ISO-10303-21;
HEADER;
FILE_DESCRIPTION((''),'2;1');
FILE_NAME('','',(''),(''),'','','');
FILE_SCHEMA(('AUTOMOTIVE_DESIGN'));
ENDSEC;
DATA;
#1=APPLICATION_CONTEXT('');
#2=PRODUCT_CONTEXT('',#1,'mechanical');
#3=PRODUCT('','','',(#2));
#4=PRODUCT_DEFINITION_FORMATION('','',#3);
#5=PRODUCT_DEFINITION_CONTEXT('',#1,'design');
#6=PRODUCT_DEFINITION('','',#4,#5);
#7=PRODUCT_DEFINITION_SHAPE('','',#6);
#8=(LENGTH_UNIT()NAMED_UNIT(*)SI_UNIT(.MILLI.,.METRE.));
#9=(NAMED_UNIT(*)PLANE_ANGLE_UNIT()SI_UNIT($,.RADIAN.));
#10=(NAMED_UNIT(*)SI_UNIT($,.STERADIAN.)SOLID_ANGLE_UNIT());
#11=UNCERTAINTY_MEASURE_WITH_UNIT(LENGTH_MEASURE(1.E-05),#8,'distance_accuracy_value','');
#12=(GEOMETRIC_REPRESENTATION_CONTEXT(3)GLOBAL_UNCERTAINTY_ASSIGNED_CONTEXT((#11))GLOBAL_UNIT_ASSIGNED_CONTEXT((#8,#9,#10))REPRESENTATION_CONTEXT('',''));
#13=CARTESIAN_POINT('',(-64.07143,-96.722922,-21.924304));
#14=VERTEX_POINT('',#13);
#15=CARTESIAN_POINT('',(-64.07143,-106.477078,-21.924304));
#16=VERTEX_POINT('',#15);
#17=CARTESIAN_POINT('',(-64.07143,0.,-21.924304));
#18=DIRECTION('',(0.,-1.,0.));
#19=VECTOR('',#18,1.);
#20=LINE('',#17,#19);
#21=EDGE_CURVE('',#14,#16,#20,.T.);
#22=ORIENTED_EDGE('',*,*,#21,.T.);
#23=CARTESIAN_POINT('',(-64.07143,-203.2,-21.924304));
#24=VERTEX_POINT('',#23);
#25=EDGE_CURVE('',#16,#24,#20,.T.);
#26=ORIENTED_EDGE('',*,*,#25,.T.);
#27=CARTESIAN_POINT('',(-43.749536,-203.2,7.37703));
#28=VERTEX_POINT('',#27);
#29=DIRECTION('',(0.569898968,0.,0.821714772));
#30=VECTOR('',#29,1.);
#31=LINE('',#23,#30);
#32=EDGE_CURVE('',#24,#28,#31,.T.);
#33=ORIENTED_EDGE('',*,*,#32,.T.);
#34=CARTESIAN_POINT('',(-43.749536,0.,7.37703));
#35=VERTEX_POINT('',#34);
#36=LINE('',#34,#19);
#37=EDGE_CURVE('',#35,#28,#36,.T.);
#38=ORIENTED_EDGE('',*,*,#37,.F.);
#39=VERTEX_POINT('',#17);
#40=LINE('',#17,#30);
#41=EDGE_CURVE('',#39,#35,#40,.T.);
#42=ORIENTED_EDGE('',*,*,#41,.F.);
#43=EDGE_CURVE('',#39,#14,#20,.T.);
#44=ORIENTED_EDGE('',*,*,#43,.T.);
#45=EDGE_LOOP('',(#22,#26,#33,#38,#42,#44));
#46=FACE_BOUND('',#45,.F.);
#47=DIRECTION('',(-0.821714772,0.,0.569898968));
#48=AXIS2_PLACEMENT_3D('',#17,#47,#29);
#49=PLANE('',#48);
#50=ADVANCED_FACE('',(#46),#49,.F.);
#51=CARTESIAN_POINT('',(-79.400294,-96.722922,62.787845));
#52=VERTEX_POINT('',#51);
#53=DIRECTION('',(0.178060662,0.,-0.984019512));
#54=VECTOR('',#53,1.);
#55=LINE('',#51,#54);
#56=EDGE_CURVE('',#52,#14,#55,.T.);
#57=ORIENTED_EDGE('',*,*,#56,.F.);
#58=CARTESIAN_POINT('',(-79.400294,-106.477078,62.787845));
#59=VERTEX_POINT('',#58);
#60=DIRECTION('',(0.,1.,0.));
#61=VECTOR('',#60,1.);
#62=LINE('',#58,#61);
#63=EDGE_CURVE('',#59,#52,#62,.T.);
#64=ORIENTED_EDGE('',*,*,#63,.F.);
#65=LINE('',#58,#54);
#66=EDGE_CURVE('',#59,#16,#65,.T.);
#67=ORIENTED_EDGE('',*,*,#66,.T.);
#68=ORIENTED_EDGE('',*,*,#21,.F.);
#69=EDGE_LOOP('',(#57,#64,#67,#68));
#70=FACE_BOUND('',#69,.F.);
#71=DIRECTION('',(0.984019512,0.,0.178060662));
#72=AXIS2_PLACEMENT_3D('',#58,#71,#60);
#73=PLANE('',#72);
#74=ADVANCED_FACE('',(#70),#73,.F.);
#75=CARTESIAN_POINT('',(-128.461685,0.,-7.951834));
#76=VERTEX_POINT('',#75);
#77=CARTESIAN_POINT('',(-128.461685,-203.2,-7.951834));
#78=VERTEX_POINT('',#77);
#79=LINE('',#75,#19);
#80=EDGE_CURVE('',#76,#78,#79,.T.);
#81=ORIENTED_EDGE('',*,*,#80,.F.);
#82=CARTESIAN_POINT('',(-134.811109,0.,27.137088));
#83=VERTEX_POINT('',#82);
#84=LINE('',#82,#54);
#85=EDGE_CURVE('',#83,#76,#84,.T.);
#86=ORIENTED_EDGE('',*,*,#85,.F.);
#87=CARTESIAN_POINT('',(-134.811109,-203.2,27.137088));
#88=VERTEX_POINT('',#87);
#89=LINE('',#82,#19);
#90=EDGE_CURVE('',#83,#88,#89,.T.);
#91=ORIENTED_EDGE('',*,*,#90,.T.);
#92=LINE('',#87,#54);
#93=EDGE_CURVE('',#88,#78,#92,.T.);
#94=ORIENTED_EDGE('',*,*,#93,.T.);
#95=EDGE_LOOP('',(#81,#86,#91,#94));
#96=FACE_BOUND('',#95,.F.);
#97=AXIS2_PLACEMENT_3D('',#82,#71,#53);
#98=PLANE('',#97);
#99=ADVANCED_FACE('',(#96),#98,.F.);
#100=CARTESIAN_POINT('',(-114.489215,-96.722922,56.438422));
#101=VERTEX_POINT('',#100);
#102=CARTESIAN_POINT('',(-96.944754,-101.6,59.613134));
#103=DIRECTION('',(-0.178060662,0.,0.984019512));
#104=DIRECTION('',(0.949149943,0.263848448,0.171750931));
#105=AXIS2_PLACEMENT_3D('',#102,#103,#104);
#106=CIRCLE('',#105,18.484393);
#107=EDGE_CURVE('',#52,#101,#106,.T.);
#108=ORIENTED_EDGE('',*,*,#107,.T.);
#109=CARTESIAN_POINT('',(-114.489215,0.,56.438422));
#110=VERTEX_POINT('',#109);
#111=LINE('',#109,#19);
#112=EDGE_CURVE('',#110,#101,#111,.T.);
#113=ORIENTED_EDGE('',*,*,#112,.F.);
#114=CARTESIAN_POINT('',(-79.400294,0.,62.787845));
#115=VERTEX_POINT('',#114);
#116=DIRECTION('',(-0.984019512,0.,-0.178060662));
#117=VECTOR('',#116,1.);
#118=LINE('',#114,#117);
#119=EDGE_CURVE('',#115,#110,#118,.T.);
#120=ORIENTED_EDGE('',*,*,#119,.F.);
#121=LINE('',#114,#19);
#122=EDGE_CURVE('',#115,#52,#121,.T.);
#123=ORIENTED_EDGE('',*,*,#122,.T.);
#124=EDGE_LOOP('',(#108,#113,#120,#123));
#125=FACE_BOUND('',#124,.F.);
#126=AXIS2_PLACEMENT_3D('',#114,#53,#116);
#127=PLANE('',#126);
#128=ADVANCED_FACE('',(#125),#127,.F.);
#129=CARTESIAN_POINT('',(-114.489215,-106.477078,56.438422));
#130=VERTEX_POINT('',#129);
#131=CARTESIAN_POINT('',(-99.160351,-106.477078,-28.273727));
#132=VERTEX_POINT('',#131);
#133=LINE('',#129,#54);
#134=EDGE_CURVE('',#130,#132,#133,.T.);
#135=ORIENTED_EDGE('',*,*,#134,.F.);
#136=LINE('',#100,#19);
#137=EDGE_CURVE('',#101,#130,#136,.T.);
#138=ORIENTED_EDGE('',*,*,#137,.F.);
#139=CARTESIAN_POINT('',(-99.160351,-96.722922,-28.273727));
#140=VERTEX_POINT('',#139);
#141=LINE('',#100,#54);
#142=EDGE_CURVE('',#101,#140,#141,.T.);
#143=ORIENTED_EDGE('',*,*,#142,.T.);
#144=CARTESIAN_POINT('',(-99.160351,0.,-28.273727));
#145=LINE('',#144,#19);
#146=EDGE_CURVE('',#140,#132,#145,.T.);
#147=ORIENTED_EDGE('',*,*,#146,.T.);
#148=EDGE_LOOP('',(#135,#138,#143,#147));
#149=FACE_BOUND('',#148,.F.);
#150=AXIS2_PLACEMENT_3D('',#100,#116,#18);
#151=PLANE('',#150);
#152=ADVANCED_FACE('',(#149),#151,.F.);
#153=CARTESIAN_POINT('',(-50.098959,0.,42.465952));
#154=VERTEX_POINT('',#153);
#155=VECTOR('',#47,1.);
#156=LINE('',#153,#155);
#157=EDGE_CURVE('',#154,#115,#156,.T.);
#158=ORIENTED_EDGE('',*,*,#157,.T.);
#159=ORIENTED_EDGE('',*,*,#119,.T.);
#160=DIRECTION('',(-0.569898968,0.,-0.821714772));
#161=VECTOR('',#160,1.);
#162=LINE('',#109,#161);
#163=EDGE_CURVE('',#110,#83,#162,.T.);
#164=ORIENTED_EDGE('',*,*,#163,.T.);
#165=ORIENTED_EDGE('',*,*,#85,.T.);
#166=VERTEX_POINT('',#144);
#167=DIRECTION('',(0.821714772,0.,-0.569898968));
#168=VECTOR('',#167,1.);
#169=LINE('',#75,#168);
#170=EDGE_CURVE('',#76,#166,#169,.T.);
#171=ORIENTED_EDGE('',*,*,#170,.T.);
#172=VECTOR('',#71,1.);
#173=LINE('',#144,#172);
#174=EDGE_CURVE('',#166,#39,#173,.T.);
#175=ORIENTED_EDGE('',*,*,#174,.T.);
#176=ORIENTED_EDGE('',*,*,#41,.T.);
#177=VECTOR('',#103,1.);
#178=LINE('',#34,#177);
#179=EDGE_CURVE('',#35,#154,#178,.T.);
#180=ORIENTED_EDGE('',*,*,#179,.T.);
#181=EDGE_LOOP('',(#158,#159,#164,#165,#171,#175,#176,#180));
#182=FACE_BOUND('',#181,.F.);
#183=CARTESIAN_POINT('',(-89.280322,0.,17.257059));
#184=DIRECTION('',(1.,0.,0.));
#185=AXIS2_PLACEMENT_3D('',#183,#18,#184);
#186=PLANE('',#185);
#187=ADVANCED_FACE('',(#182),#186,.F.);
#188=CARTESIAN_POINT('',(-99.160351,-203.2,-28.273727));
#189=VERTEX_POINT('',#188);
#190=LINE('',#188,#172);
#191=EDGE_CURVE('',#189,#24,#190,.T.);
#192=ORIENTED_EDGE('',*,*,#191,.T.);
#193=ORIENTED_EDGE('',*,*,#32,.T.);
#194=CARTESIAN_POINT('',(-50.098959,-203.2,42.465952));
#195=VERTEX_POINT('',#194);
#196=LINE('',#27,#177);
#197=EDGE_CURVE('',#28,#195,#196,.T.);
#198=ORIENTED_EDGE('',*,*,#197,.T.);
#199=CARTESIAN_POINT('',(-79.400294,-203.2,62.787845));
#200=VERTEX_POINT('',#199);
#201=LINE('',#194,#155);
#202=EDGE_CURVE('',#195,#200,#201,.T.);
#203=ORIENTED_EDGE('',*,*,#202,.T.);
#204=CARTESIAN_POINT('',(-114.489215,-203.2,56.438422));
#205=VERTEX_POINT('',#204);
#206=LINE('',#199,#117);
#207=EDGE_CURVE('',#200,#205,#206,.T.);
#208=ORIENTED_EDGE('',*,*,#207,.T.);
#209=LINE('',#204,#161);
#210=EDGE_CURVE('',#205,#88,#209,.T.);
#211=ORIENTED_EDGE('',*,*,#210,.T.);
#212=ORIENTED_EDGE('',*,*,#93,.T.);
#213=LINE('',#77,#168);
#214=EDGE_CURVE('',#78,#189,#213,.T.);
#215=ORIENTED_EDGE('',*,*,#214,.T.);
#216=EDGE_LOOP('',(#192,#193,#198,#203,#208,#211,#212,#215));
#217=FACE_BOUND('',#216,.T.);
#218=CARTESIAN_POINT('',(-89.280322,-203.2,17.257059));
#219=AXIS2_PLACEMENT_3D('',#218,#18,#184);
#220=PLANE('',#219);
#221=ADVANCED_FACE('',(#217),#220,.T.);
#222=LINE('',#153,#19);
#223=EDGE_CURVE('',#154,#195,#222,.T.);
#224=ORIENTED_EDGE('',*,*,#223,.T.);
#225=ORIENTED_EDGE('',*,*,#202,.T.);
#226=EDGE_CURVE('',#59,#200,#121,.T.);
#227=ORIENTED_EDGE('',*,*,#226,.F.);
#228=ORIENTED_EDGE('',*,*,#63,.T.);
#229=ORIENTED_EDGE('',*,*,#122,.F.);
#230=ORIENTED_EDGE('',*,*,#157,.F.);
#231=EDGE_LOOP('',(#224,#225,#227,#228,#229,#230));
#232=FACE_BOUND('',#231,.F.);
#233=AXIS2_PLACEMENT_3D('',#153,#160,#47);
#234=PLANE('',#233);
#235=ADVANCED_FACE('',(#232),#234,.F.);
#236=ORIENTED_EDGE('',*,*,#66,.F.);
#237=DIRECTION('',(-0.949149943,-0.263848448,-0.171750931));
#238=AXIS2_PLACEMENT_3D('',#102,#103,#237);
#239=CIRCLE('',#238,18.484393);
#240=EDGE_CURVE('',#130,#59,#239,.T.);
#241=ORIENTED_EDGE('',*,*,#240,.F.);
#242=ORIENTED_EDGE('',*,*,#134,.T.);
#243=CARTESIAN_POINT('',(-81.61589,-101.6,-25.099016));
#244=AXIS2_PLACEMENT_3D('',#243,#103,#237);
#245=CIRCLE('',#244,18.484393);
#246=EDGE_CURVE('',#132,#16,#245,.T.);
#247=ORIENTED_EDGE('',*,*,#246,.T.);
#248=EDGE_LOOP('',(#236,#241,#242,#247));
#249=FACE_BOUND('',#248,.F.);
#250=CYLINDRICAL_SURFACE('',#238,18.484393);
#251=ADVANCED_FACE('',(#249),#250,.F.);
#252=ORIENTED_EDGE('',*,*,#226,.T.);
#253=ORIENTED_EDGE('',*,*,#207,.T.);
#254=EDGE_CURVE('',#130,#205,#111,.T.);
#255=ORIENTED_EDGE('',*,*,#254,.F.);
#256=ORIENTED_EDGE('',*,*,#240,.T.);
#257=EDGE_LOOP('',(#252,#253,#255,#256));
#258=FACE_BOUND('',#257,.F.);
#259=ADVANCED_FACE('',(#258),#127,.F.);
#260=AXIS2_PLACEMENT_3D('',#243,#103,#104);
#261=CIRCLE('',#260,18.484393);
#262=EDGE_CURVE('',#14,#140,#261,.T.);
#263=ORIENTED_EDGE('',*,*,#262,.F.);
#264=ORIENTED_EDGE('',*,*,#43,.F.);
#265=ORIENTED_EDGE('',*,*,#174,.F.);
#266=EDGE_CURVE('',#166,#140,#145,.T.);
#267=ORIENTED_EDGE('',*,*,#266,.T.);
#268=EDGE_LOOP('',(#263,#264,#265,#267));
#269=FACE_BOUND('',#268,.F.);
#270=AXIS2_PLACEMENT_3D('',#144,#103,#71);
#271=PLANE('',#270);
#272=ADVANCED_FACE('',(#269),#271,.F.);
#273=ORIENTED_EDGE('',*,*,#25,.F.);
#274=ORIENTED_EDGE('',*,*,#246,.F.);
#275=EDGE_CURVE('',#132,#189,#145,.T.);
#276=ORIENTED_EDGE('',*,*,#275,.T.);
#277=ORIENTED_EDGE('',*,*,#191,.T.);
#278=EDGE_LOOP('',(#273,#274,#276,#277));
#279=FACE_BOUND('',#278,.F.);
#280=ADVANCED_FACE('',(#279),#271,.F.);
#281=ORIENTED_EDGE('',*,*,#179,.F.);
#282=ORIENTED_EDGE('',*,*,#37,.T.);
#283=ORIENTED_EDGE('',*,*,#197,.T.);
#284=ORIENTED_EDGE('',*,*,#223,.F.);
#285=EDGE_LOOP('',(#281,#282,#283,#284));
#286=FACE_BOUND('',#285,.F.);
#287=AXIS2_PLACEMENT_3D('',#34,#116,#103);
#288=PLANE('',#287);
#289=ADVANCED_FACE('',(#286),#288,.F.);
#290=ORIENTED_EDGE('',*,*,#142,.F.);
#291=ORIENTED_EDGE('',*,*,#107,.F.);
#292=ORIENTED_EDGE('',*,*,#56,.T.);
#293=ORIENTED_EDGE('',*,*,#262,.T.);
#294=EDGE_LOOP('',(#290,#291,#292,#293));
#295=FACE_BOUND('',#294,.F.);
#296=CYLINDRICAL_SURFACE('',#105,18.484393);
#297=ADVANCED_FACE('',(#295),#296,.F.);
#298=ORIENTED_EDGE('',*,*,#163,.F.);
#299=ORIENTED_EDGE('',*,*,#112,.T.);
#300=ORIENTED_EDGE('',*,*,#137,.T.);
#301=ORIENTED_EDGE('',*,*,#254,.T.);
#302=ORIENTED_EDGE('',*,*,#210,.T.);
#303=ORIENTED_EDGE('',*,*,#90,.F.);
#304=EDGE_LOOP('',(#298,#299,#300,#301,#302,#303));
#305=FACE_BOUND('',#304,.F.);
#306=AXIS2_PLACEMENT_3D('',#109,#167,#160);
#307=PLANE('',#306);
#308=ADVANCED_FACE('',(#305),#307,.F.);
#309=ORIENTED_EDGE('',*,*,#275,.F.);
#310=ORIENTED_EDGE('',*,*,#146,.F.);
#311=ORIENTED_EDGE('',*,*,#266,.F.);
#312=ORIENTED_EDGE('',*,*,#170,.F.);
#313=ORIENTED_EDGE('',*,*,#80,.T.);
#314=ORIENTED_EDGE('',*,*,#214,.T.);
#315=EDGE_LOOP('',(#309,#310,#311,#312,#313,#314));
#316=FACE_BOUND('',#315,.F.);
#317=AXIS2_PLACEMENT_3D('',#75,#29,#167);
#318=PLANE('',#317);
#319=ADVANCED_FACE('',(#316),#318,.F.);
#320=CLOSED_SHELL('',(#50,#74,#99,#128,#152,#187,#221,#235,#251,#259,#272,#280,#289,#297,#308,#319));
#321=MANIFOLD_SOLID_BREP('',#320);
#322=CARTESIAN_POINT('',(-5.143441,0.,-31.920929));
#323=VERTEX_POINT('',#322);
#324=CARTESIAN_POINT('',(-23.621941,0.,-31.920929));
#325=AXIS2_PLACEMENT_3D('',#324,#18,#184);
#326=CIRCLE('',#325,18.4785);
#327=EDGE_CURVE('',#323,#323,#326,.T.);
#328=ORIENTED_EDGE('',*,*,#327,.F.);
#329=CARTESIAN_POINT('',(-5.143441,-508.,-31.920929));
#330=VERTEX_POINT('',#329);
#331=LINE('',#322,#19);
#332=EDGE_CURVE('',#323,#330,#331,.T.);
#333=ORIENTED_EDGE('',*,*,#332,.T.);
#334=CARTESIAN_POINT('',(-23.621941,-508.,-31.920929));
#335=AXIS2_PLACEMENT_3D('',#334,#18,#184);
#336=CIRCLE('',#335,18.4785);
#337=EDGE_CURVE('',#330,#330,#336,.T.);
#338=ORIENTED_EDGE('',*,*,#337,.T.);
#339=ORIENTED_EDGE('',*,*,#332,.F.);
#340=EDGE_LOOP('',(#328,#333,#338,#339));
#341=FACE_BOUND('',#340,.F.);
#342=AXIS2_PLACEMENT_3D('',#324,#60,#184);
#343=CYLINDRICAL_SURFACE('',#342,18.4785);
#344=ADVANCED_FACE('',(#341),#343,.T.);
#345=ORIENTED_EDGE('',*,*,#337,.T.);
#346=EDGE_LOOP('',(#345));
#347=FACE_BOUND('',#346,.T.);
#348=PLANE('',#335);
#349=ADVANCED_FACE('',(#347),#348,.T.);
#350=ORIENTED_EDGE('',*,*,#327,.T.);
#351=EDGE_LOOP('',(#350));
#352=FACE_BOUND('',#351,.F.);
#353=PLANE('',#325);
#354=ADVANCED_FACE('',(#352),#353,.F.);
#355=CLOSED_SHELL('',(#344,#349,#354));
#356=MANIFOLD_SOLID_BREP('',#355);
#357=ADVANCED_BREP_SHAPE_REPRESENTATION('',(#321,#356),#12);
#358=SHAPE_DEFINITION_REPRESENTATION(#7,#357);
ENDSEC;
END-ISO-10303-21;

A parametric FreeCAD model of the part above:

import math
import FreeCAD as App
import Part
import Sketcher

V = App.Vector
Q = App.Units.Quantity


def add_polygon(sketch, points):
    """Adds a closed chain of lines whose ends are joined by coincident constraints."""
    first, n = sketch.GeometryCount, len(points)
    for a, b in zip(points, points[1:] + points[:1]):
        sketch.addGeometry(Part.LineSegment(App.Vector(*a, 0), App.Vector(*b, 0)), False)
    for i in range(n):
        sketch.addConstraint(Sketcher.Constraint("Coincident", first + i, 2, first + (i + 1) % n, 1))

doc = App.newDocument("Part")
body = doc.addObject("PartDesign::Body", "Body")

sketch1 = body.newObject("Sketcher::SketchObject", "Sketch")
sketch1.AttachmentSupport = (doc.getObject("XZ_Plane"), [""])
sketch1.MapMode = "FlatFace"
add_polygon(sketch1, [(-64, -22), (-44, 7), (-50, 42), (-79, 63), (-114, 56), (-135, 27), (-128, -8), (-99, -28)])
sketch1.addConstraint([
    Sketcher.Constraint("Perpendicular", 0, 2),
    Sketcher.Constraint("Perpendicular", 1, 3),
    Sketcher.Constraint("Perpendicular", 2, 4),
    Sketcher.Constraint("Perpendicular", 3, 5),
    Sketcher.Constraint("Perpendicular", 4, 6),
    Sketcher.Constraint("Perpendicular", 5, 7),
    Sketcher.Constraint("Equal", 0, 1),
    Sketcher.Constraint("Equal", 1, 2),
    Sketcher.Constraint("Equal", 2, 3),
    Sketcher.Constraint("Equal", 3, 4),
    Sketcher.Constraint("Equal", 4, 5),
    Sketcher.Constraint("DistanceX", 1, 2, -1, 1, Q("1.9724 in")),
    Sketcher.Constraint("DistanceY", -1, 1, 0, 2, Q("7.37703 mm")),
    Sketcher.Constraint("DistanceY", -1, 1, 1, 2, Q("42.465952 mm")),
    Sketcher.Constraint("DistanceY", -1, 1, 3, 2, Q("56.438422 mm")),
    Sketcher.Constraint("DistanceX", 4, 2, -1, 1, Q("134.811109 mm")),
])
pad1 = body.newObject("PartDesign::Pad", "Pad")
pad1.Profile = sketch1
pad1.Length = Q("8 in")

sketch2 = body.newObject("Sketcher::SketchObject", "Sketch001")
sketch2.Placement = App.Placement(V(-13.518817, 0, 74.709255), App.Rotation(V(0.984019512, 0, 0.178060662), V(0, 0.999999999, 0), V(-0.178060662, 0, 0.984019512), "ZXY"))
sketch2.addGeometry([
    Part.LineSegment(V(-103, -97, 0), V(-103, -106, 0)),
    Part.ArcOfCircle(Part.Circle(V(-85, -102, 0), V(0, 0, 1), 18), math.radians(-165), math.radians(-15)),
    Part.LineSegment(V(-67, -106, 0), V(-67, -97, 0)),
    Part.ArcOfCircle(Part.Circle(V(-85, -102, 0), V(0, 0, 1), 18), math.radians(15), math.radians(165)),
], False)
sketch2.addConstraint([
    Sketcher.Constraint("Coincident", 0, 2, 1, 1),
    Sketcher.Constraint("Coincident", 1, 2, 2, 1),
    Sketcher.Constraint("Coincident", 2, 2, 3, 1),
    Sketcher.Constraint("Coincident", 3, 2, 0, 1),
    Sketcher.Constraint("Vertical", 0),
    Sketcher.Constraint("Vertical", 2),
    Sketcher.Constraint("Coincident", 3, 3, 1, 3),
    Sketcher.Constraint("Equal", 1, 3),
    Sketcher.Constraint("Horizontal", 0, 2, 1, 2),
    Sketcher.Constraint("DistanceY", 1, 3, -1, 1, Q("4 in")),
    Sketcher.Constraint("Radius", 1, Q("18.484393 mm")),
    Sketcher.Constraint("DistanceY", 0, 2, 0, 1, Q("9.754157 mm")),
    Sketcher.Constraint("DistanceX", 0, 2, -1, 1, Q("102.610159 mm")),
])
pocket1 = body.newObject("PartDesign::Pocket", "Pocket")
pocket1.Profile = sketch2
pocket1.Length = Q("8 in")
body2 = doc.addObject("PartDesign::Body", "Body001")

sketch3 = body2.newObject("Sketcher::SketchObject", "Sketch002")
sketch3.AttachmentSupport = (doc.getObject("XZ_Plane001"), [""])
sketch3.MapMode = "FlatFace"
sketch3.addGeometry(Part.Circle(V(-24, -32, 0), V(0, 0, 1), 18), False)
sketch3.addConstraint([
    Sketcher.Constraint("Diameter", 0, Q("1.455 in")),
    Sketcher.Constraint("DistanceX", 0, 3, -1, 1, Q("23.621941 mm")),
    Sketcher.Constraint("DistanceY", 0, 3, -1, 1, Q("31.920929 mm")),
])
pad2 = body2.newObject("PartDesign::Pad", "Pad001")
pad2.Profile = sketch3
pad2.Length = Q("20 in")

doc.recompute()
